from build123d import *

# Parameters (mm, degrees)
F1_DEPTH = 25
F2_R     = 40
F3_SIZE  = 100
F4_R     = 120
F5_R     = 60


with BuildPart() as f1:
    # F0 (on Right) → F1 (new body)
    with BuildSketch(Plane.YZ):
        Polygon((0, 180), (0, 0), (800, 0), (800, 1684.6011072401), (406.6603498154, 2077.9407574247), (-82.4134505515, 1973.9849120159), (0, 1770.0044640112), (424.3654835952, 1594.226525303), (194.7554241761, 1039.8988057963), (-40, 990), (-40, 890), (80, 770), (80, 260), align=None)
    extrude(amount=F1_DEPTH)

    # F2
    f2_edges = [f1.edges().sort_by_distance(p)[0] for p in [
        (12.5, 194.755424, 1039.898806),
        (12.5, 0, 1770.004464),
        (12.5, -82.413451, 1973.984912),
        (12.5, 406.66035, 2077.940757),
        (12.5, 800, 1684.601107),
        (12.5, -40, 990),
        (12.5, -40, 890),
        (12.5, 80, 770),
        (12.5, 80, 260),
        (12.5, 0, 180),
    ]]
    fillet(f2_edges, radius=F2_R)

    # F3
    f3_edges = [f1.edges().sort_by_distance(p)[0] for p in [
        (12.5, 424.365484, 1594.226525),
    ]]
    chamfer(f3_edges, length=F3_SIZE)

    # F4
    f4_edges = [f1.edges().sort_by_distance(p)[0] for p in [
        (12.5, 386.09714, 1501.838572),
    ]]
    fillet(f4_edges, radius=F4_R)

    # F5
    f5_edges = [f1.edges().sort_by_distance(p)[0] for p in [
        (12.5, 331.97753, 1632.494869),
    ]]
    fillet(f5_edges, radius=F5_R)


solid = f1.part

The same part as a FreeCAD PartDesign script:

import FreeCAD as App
import Part
import Sketcher

V = App.Vector
Q = App.Units.Quantity


def edges_at(feature, points):
    """Names of the edges that pass closest to the given points."""
    edges = feature.Shape.Edges
    near = lambda p: min(range(len(edges)), key=lambda i: edges[i].distToShape(Part.Vertex(*p))[0])
    return sorted({f"Edge{near(p) + 1}" for p in points})


def add_polygon(sketch, points):
    """Adds a closed chain of lines whose ends are joined by coincident constraints."""
    first, n = sketch.GeometryCount, len(points)
    for a, b in zip(points, points[1:] + points[:1]):
        sketch.addGeometry(Part.LineSegment(App.Vector(*a, 0), App.Vector(*b, 0)), False)
    for i in range(n):
        sketch.addConstraint(Sketcher.Constraint("Coincident", first + i, 2, first + (i + 1) % n, 1))

doc = App.newDocument("Part")
body = doc.addObject("PartDesign::Body", "Body")

# Sketch on YZ plane
sketch1 = body.newObject("Sketcher::SketchObject", "Sketch")
sketch1.AttachmentSupport = (doc.getObject("YZ_Plane"), [""])
sketch1.MapMode = "FlatFace"
add_polygon(sketch1, [(0, 180), (0, 0), (800, 0), (800, 1685), (407, 2078), (-82, 1974), (0, 1770), (424, 1594), (195, 1040), (-40, 990), (-40, 890), (80, 770), (80, 260)])  # lines 0-12
sketch1.addConstraint([
    Sketcher.Constraint("Vertical", 0),
    Sketcher.Constraint("Horizontal", 1),
    Sketcher.Constraint("Vertical", 2),
    Sketcher.Constraint("Vertical", 9),
    Sketcher.Constraint("Vertical", 11),
    Sketcher.Constraint("Coincident", 0, 2, -1, 1),
    Sketcher.Constraint("PointOnObject", 5, 2, -2),
    Sketcher.Constraint("Perpendicular", 6, 7),
    Sketcher.Constraint("Parallel", 4, 8),
    Sketcher.Constraint("Parallel", 3, 10),
    Sketcher.Constraint("Perpendicular", 10, 12),
    Sketcher.Constraint("DistanceX", 1, 1, 1, 2, Q("800 mm")),
    Sketcher.Constraint("DistanceY", 0, 2, 0, 1, Q("180 mm")),
    Sketcher.Constraint("DistanceY", 9, 2, 9, 1, Q("100 mm")),
    Sketcher.Constraint("DistanceY", 11, 2, 11, 1, Q("510 mm")),
    Sketcher.Constraint("Angle", 3, Q("135 deg")),
    Sketcher.Constraint("Angle", 4, Q("-168 deg")),
    Sketcher.Constraint("Angle", 5, Q("-68 deg")),
    Sketcher.Constraint("Distance", 4, Q("500 mm")),
    Sketcher.Constraint("Distance", 5, Q("220 mm")),
    Sketcher.Constraint("Distance", 7, Q("600 mm")),
    Sketcher.Constraint("Distance", 8, Q("240 mm")),
    Sketcher.Constraint("DistanceX", 8, 2, -1, 1, Q("40 mm")),
    Sketcher.Constraint("DistanceY", -1, 1, 8, 2, Q("990 mm")),
    Sketcher.Constraint("Angle", 6, Q("-22.5 deg")),
])
pad1 = body.newObject("PartDesign::Pad", "Pad")
pad1.Profile = sketch1
pad1.Length = 25
doc.recompute()

fillet = body.newObject("PartDesign::Fillet", "Fillet")
fillet.Base = (pad1, edges_at(pad1, [
    (12.5, 194.755, 1039.899),
    (12.5, 0, 1770.004),
    (12.5, -82.413, 1973.985),
    (12.5, 406.66, 2077.941),
    (12.5, 800, 1684.601),
    (12.5, -40, 990),
    (12.5, -40, 890),
    (12.5, 80, 770),
    (12.5, 80, 260),
    (12.5, 0, 180),
]))
fillet.Radius = 40
doc.recompute()

chamfer = body.newObject("PartDesign::Chamfer", "Chamfer")
chamfer.Base = (fillet, edges_at(fillet, [(12.5, 424.365, 1594.227)]))
chamfer.Size = 100
doc.recompute()

fillet2 = body.newObject("PartDesign::Fillet", "Fillet001")
fillet2.Base = (chamfer, edges_at(chamfer, [(12.5, 386.097, 1501.839)]))
fillet2.Radius = 120
doc.recompute()

fillet3 = body.newObject("PartDesign::Fillet", "Fillet002")
fillet3.Base = (fillet2, edges_at(fillet2, [(12.5, 331.978, 1632.495)]))
fillet3.Radius = 60

doc.recompute()
